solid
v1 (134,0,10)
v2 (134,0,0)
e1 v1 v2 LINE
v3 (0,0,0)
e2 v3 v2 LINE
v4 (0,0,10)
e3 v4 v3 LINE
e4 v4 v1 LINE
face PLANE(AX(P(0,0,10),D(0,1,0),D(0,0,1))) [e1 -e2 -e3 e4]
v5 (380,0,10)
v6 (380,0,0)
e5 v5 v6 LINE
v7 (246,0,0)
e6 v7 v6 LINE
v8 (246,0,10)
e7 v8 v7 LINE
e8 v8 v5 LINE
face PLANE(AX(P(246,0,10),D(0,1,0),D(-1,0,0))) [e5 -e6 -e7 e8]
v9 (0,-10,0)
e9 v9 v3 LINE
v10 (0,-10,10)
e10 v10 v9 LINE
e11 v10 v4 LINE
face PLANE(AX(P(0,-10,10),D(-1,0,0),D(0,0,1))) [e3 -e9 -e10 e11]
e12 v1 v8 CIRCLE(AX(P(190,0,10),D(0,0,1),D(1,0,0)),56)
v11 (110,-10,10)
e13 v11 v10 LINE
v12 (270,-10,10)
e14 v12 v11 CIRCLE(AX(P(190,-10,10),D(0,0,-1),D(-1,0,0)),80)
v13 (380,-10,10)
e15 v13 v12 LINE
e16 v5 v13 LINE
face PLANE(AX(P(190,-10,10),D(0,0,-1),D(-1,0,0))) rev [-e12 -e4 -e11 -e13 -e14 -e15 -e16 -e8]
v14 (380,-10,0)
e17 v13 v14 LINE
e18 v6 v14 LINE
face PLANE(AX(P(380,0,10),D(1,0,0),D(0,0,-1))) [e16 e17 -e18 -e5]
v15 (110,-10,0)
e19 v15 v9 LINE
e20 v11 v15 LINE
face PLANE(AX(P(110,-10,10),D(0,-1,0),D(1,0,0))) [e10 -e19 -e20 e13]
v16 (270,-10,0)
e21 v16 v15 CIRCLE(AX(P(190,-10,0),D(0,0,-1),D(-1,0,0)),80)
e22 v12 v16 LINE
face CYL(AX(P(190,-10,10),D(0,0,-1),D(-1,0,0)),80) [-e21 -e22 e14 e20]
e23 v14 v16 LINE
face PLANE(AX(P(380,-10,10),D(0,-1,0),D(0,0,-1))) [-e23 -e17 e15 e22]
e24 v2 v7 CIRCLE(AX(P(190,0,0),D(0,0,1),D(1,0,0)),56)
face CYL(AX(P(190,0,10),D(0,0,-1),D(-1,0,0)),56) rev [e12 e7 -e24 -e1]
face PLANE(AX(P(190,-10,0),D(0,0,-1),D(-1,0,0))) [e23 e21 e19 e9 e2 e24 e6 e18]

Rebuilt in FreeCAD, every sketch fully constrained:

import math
import FreeCAD as App
import Part
import Sketcher
from FreeCAD import Vector
Q = App.Units.Quantity

doc = App.newDocument("Part")
body = doc.addObject("PartDesign::Body", "Body")

sketch1 = body.newObject("Sketcher::SketchObject", "Sketch")
sketch1.AttachmentSupport = (doc.getObject("XY_Plane"), [""])
sketch1.MapMode = "FlatFace"
sketch1.addGeometry(Part.LineSegment(Vector(134, 0, 0), Vector(0, 0, 0)), False)
sketch1.addGeometry(Part.LineSegment(Vector(0, 0, 0), Vector(0, -10, 0)), False)
sketch1.addGeometry(Part.LineSegment(Vector(0, -10, 0), Vector(110, -10, 0)), False)
sketch1.addGeometry(Part.ArcOfCircle(Part.Circle(Vector(190, -10, 0), Vector(0, 0, 1), 80), math.radians(180), math.radians(360)), False)
sketch1.addGeometry(Part.LineSegment(Vector(270, -10, 0), Vector(380, -10, 0)), False)
sketch1.addGeometry(Part.LineSegment(Vector(380, -10, 0), Vector(380, 0, 0)), False)
sketch1.addGeometry(Part.LineSegment(Vector(380, 0, 0), Vector(246, 0, 0)), False)
sketch1.addGeometry(Part.ArcOfCircle(Part.Circle(Vector(190, 0, 0), Vector(0, 0, 1), 56), math.radians(180), math.radians(360)), False)
sketch1.addConstraint(Sketcher.Constraint("Coincident", 0, 2, 1, 1))
sketch1.addConstraint(Sketcher.Constraint("Coincident", 1, 2, 2, 1))
sketch1.addConstraint(Sketcher.Constraint("Coincident", 2, 2, 3, 1))
sketch1.addConstraint(Sketcher.Constraint("Coincident", 3, 2, 4, 1))
sketch1.addConstraint(Sketcher.Constraint("Coincident", 4, 2, 5, 1))
sketch1.addConstraint(Sketcher.Constraint("Coincident", 5, 2, 6, 1))
sketch1.addConstraint(Sketcher.Constraint("Coincident", 6, 2, 7, 2))
sketch1.addConstraint(Sketcher.Constraint("Coincident", 7, 1, 0, 1))
sketch1.addConstraint(Sketcher.Constraint("Horizontal", 0))
sketch1.addConstraint(Sketcher.Constraint("Vertical", 1))
sketch1.addConstraint(Sketcher.Constraint("Horizontal", 2))
sketch1.addConstraint(Sketcher.Constraint("Horizontal", 4))
sketch1.addConstraint(Sketcher.Constraint("Vertical", 5))
sketch1.addConstraint(Sketcher.Constraint("Horizontal", 6))
sketch1.addConstraint(Sketcher.Constraint("Coincident", 0, 2, -1, 1))
sketch1.addConstraint(Sketcher.Constraint("PointOnObject", 7, 3, -1))
sketch1.addConstraint(Sketcher.Constraint("PointOnObject", 5, 2, -1))
sketch1.addConstraint(Sketcher.Constraint("Horizontal", 3, 3, 1, 2))
sketch1.addConstraint(Sketcher.Constraint("Horizontal", 2, 2, 3, 2))
sketch1.addConstraint(Sketcher.Constraint("Vertical", 3, 3, 7, 3))
sketch1.addConstraint(Sketcher.Constraint("Equal", 2, 4))
sketch1.addConstraint(Sketcher.Constraint("Radius", 3, Q("80 mm")))
sketch1.addConstraint(Sketcher.Constraint("Radius", 7, Q("56 mm")))
sketch1.addConstraint(Sketcher.Constraint("DistanceX", 0, 2, 0, 1, Q("134 mm")))
sketch1.addConstraint(Sketcher.Constraint("DistanceY", 1, 2, 1, 1, Q("10 mm")))
pad1 = body.newObject("PartDesign::Pad", "Pad")
pad1.Profile = sketch1
pad1.Length = 10

doc.recompute()
